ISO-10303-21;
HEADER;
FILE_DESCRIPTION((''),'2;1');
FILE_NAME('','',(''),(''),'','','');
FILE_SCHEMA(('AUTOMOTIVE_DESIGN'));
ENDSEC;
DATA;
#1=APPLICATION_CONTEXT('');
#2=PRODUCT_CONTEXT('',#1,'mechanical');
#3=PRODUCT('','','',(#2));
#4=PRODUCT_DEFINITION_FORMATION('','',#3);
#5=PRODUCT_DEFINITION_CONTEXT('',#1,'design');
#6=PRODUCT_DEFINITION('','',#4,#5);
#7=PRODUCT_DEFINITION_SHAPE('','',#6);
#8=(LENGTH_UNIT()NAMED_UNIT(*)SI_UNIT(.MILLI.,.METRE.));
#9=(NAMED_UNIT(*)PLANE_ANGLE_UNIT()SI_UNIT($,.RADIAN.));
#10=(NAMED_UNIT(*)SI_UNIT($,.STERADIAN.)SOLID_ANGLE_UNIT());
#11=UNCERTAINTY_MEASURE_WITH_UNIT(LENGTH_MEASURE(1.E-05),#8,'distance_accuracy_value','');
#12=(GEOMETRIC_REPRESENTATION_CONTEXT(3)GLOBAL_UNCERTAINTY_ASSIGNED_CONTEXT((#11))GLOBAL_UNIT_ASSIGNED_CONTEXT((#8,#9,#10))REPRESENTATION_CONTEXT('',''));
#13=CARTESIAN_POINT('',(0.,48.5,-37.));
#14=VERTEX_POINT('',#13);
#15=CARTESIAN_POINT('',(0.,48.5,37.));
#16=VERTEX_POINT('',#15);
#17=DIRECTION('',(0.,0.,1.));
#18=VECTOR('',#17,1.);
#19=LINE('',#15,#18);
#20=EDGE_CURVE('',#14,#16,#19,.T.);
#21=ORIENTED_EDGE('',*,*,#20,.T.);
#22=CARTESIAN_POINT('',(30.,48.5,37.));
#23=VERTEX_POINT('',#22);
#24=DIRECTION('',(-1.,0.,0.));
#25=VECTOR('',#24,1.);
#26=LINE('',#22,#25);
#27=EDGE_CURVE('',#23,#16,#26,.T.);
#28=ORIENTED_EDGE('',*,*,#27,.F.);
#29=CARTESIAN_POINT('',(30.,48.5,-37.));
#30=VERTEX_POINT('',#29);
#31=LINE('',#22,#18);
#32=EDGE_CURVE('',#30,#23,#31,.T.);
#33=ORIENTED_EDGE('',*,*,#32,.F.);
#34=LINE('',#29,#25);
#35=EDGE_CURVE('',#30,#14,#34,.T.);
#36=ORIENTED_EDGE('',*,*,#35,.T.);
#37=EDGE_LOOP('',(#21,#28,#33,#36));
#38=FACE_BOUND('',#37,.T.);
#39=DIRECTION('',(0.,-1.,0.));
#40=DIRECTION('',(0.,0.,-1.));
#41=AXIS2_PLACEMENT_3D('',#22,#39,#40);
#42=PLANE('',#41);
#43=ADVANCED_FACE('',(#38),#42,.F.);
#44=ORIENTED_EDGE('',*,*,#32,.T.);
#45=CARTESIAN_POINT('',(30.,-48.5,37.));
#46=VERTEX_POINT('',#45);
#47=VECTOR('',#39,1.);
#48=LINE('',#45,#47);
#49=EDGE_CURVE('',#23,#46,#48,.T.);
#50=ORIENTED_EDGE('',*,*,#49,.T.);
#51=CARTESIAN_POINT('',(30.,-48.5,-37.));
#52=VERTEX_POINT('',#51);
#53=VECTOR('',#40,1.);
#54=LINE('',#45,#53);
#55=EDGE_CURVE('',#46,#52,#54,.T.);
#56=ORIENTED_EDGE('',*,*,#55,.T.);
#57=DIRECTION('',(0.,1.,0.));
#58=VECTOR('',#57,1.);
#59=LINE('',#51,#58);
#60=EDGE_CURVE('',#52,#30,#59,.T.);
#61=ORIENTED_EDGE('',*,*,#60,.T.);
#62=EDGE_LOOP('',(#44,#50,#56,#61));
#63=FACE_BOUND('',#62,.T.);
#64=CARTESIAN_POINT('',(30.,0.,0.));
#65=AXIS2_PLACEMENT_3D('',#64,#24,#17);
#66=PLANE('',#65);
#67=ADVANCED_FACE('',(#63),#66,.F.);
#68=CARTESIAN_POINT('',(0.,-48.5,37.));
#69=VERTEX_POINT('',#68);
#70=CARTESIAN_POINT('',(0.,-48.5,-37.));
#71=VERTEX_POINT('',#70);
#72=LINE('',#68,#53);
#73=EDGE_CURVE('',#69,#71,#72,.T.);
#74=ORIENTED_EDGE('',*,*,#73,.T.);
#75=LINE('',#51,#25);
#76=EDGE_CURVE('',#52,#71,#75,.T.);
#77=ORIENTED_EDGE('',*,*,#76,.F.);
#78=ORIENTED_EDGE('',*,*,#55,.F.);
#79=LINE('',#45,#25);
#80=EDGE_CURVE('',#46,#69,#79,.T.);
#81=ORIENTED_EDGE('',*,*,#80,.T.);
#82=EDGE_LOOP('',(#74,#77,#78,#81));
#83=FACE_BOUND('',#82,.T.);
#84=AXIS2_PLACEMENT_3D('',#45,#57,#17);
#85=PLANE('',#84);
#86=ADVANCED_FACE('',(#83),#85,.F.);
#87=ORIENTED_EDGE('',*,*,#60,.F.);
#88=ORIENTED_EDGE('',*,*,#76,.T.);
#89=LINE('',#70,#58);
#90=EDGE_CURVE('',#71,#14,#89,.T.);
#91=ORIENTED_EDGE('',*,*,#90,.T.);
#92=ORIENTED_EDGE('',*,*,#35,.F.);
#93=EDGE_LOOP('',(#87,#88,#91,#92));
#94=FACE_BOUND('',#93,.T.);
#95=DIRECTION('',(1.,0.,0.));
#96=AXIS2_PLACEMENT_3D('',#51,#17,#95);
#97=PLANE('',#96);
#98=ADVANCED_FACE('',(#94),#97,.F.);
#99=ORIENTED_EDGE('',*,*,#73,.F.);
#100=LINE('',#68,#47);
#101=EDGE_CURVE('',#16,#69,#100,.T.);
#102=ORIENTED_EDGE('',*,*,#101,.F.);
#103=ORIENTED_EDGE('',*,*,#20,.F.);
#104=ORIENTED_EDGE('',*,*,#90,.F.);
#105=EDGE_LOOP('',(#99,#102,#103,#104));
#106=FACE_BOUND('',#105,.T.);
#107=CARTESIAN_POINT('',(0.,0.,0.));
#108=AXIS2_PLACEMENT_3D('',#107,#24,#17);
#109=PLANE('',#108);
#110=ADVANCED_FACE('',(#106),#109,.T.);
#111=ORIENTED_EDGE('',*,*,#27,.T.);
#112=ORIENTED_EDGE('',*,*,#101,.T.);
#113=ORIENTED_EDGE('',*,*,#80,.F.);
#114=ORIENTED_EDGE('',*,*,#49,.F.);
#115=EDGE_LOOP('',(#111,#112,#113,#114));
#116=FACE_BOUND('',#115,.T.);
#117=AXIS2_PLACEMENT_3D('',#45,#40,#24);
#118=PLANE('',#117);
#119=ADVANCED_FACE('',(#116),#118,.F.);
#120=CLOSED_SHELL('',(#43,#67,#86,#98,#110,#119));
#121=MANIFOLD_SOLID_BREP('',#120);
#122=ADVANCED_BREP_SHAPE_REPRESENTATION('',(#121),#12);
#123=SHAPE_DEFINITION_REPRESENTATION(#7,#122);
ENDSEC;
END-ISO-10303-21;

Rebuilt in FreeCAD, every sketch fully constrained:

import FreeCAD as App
import Part
import Sketcher
from FreeCAD import Vector

doc = App.newDocument("Part")
body = doc.addObject("PartDesign::Body", "Body")

# Sketch on YZ plane
sketch1 = body.newObject("Sketcher::SketchObject", "Sketch")
sketch1.AttachmentSupport = (doc.getObject("YZ_Plane"), [""])
sketch1.MapMode = "FlatFace"
sketch1.addGeometry([
    Part.LineSegment(Vector(48.5, 37, 0), Vector(-48.5, 37, 0)),
    Part.LineSegment(Vector(-48.5, 37, 0), Vector(-48.5, -37, 0)),
    Part.LineSegment(Vector(-48.5, -37, 0), Vector(48.5, -37, 0)),
    Part.LineSegment(Vector(48.5, -37, 0), Vector(48.5, 37, 0)),
], False)
sketch1.addConstraint([
    Sketcher.Constraint("Coincident", 0, 2, 1, 1),
    Sketcher.Constraint("Coincident", 1, 2, 2, 1),
    Sketcher.Constraint("Coincident", 2, 2, 3, 1),
    Sketcher.Constraint("Coincident", 3, 2, 0, 1),
    Sketcher.Constraint("Horizontal", 0),
    Sketcher.Constraint("Vertical", 1),
    Sketcher.Constraint("Horizontal", 2),
    Sketcher.Constraint("Vertical", 3),
    Sketcher.Constraint("Symmetric", 0, 2, 2, 2, -1, 1),
    Sketcher.Constraint("DistanceX", 0, 2, 0, 1, 97.0),
    Sketcher.Constraint("DistanceY", 1, 2, 1, 1, 74.0),
])
pad1 = body.newObject("PartDesign::Pad", "Pad")
pad1.Profile = sketch1
pad1.Length = 30

doc.recompute()
